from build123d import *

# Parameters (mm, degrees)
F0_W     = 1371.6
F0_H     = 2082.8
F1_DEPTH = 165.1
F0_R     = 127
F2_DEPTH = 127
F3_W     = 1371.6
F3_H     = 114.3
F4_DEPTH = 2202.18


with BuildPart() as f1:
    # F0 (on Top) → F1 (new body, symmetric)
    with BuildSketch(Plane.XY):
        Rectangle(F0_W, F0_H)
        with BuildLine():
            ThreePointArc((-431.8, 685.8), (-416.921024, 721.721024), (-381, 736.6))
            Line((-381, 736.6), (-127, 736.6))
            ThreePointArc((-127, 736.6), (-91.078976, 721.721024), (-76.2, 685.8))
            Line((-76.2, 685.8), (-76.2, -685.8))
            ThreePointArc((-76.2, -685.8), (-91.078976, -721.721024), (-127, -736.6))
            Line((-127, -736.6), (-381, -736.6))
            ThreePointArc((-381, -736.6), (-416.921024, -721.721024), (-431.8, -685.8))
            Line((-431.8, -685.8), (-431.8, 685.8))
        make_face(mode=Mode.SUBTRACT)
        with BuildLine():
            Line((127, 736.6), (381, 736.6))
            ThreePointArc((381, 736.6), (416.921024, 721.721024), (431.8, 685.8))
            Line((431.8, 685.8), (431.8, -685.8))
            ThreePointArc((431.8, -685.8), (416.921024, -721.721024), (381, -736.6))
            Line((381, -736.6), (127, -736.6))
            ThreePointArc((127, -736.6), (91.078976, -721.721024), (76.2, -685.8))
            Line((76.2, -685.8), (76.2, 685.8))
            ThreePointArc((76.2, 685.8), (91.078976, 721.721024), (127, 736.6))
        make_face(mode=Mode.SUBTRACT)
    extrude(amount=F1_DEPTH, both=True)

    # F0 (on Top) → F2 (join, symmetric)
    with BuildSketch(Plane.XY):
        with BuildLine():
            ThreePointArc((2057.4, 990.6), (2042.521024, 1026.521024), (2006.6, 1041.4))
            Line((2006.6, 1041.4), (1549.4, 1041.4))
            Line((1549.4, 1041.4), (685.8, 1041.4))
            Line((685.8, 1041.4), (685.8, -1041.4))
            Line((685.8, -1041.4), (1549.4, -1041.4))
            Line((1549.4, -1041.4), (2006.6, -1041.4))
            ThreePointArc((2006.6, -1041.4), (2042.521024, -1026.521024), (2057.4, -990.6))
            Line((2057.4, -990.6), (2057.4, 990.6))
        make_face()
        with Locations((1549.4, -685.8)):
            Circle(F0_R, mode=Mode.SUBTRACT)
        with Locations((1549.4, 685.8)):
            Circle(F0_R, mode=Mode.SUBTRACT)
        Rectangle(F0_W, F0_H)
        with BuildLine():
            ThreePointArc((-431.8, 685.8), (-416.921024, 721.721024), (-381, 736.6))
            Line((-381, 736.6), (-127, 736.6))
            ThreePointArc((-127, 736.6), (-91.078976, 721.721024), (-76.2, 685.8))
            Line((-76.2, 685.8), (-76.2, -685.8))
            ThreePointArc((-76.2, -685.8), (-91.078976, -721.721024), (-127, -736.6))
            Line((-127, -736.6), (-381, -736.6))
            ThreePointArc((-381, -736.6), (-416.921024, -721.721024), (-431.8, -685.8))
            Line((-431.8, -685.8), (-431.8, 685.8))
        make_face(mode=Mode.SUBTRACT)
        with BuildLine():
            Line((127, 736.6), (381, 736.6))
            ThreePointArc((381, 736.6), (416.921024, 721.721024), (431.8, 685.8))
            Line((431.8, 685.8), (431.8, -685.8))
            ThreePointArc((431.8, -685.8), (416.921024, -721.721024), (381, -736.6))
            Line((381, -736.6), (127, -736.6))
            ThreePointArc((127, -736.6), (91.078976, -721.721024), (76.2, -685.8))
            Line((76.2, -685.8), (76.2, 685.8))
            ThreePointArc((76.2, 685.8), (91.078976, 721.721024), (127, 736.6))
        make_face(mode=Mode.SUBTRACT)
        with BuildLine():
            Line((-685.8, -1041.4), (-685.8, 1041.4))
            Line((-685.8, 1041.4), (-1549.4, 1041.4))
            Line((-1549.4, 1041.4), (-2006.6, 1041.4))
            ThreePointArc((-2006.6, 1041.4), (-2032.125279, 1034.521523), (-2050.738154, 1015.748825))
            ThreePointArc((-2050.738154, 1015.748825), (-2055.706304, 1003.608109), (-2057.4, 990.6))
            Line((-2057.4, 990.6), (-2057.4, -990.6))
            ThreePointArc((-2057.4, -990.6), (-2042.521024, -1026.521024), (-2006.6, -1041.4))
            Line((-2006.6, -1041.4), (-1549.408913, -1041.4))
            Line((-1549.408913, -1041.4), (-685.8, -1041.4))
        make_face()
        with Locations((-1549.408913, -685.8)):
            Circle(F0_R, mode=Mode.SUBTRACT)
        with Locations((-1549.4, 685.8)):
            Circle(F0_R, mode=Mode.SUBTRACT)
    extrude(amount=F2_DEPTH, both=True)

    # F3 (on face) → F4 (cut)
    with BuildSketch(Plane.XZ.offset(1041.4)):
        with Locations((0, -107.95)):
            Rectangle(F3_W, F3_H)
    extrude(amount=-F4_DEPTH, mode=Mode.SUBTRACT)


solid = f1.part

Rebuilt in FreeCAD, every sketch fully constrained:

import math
import FreeCAD as App
import Part
import Sketcher

V = App.Vector
Q = App.Units.Quantity


def add_polygon(sketch, points):
    """Adds a closed chain of lines whose ends are joined by coincident constraints."""
    first, n = sketch.GeometryCount, len(points)
    for a, b in zip(points, points[1:] + points[:1]):
        sketch.addGeometry(Part.LineSegment(App.Vector(*a, 0), App.Vector(*b, 0)), False)
    for i in range(n):
        sketch.addConstraint(Sketcher.Constraint("Coincident", first + i, 2, first + (i + 1) % n, 1))

doc = App.newDocument("Part")
body = doc.addObject("PartDesign::Body", "Body")

# Sketch on XY plane
sketch1 = body.newObject("Sketcher::SketchObject", "Sketch")
sketch1.AttachmentSupport = (doc.getObject("XY_Plane"), [""])
sketch1.MapMode = "FlatFace"
add_polygon(sketch1, [(-685.8, 1041.4), (-685.8, -1041.4), (685.8, -1041.4), (685.8, 1041.4)])  # lines 0-3
sketch1.addGeometry(Part.LineSegment(V(-431.8, -685.8, 0), V(-431.8, 685.8, 0)), False)  # 4
sketch1.addGeometry(Part.ArcOfCircle(Part.Circle(V(-380.999998, 685.799998, 0), V(0, 0, 1), 50.800002), math.radians(90.000002), math.radians(179.999998)), False)  # 5
sketch1.addGeometry(Part.LineSegment(V(-381, 736.6, 0), V(-127, 736.6, 0)), False)  # 6
sketch1.addGeometry(Part.ArcOfCircle(Part.Circle(V(-127.000002, 685.799998, 0), V(0, 0, 1), 50.800002), math.radians(0.000002), math.radians(89.999998)), False)  # 7
sketch1.addGeometry(Part.LineSegment(V(-76.2, 685.8, 0), V(-76.2, -685.8, 0)), False)  # 8
sketch1.addGeometry(Part.ArcOfCircle(Part.Circle(V(-127.000002, -685.799998, 0), V(0, 0, 1), 50.800002), math.radians(-89.999998), math.radians(-0.000002)), False)  # 9
sketch1.addGeometry(Part.LineSegment(V(-127, -736.6, 0), V(-381, -736.6, 0)), False)  # 10
sketch1.addGeometry(Part.ArcOfCircle(Part.Circle(V(-380.999998, -685.799998, 0), V(0, 0, 1), 50.800002), math.radians(-179.999998), math.radians(-90.000002)), False)  # 11
sketch1.addGeometry(Part.ArcOfCircle(Part.Circle(V(127.000002, 685.799998, 0), V(0, 0, 1), 50.800002), math.radians(90.000002), math.radians(179.999998)), False)  # 12
sketch1.addGeometry(Part.LineSegment(V(127, 736.6, 0), V(381, 736.6, 0)), False)  # 13
sketch1.addGeometry(Part.ArcOfCircle(Part.Circle(V(380.999998, 685.799998, 0), V(0, 0, 1), 50.800002), math.radians(0.000002), math.radians(89.999998)), False)  # 14
sketch1.addGeometry(Part.LineSegment(V(431.8, 685.8, 0), V(431.8, -685.8, 0)), False)  # 15
sketch1.addGeometry(Part.ArcOfCircle(Part.Circle(V(380.999998, -685.799998, 0), V(0, 0, 1), 50.800002), math.radians(-89.999998), math.radians(-0.000002)), False)  # 16
sketch1.addGeometry(Part.LineSegment(V(381, -736.6, 0), V(127, -736.6, 0)), False)  # 17
sketch1.addGeometry(Part.ArcOfCircle(Part.Circle(V(127.000002, -685.799998, 0), V(0, 0, 1), 50.800002), math.radians(-179.999998), math.radians(-90.000002)), False)  # 18
sketch1.addGeometry(Part.LineSegment(V(76.2, -685.8, 0), V(76.2, 685.8, 0)), False)  # 19
sketch1.addConstraint(Sketcher.Constraint("Tangent", 4, 2, 5, 2))
sketch1.addConstraint(Sketcher.Constraint("Tangent", 5, 1, 6, 1))
sketch1.addConstraint(Sketcher.Constraint("Tangent", 6, 2, 7, 2))
sketch1.addConstraint(Sketcher.Constraint("Tangent", 7, 1, 8, 1))
sketch1.addConstraint(Sketcher.Constraint("Tangent", 8, 2, 9, 2))
sketch1.addConstraint(Sketcher.Constraint("Tangent", 9, 1, 10, 1))
sketch1.addConstraint(Sketcher.Constraint("Tangent", 10, 2, 11, 2))
sketch1.addConstraint(Sketcher.Constraint("Tangent", 11, 1, 4, 1))
sketch1.addConstraint(Sketcher.Constraint("Tangent", 12, 1, 13, 1))
sketch1.addConstraint(Sketcher.Constraint("Tangent", 13, 2, 14, 2))
sketch1.addConstraint(Sketcher.Constraint("Tangent", 14, 1, 15, 1))
sketch1.addConstraint(Sketcher.Constraint("Tangent", 15, 2, 16, 2))
sketch1.addConstraint(Sketcher.Constraint("Tangent", 16, 1, 17, 1))
sketch1.addConstraint(Sketcher.Constraint("Tangent", 17, 2, 18, 2))
sketch1.addConstraint(Sketcher.Constraint("Tangent", 18, 1, 19, 1))
sketch1.addConstraint(Sketcher.Constraint("Tangent", 19, 2, 12, 2))
sketch1.addConstraint(Sketcher.Constraint("Vertical", 0))
sketch1.addConstraint(Sketcher.Constraint("Horizontal", 1))
sketch1.addConstraint(Sketcher.Constraint("Vertical", 2))
sketch1.addConstraint(Sketcher.Constraint("Horizontal", 3))
sketch1.addConstraint(Sketcher.Constraint("Vertical", 4))
sketch1.addConstraint(Sketcher.Constraint("Horizontal", 6))
sketch1.addConstraint(Sketcher.Constraint("Vertical", 8))
sketch1.addConstraint(Sketcher.Constraint("Horizontal", 10))
sketch1.addConstraint(Sketcher.Constraint("Horizontal", 13))
sketch1.addConstraint(Sketcher.Constraint("Vertical", 15))
sketch1.addConstraint(Sketcher.Constraint("Horizontal", 17))
sketch1.addConstraint(Sketcher.Constraint("Vertical", 19))
sketch1.addConstraint(Sketcher.Constraint("Equal", 5, 7))
sketch1.addConstraint(Sketcher.Constraint("Equal", 7, 9))
sketch1.addConstraint(Sketcher.Constraint("Equal", 9, 11))
sketch1.addConstraint(Sketcher.Constraint("Equal", 11, 12))
sketch1.addConstraint(Sketcher.Constraint("Equal", 12, 14))
sketch1.addConstraint(Sketcher.Constraint("Equal", 14, 16))
sketch1.addConstraint(Sketcher.Constraint("Equal", 16, 18))
sketch1.addConstraint(Sketcher.Constraint("Symmetric", 9, 3, 12, 3, -1, 1))
sketch1.addConstraint(Sketcher.Constraint("Symmetric", 5, 3, 16, 3, -1, 1))
sketch1.addConstraint(Sketcher.Constraint("Symmetric", 0, 2, 2, 2, -1, 1))
sketch1.addConstraint(Sketcher.Constraint("Horizontal", 7, 3, 12, 3))
sketch1.addConstraint(Sketcher.Constraint("Equal", 3, 4))
sketch1.addConstraint(Sketcher.Constraint("Radius", 5, Q("2.0000001 in")))
sketch1.addConstraint(Sketcher.Constraint("DistanceX", 1, 1, 1, 2, Q("54 in")))
sketch1.addConstraint(Sketcher.Constraint("DistanceX", 6, 1, 6, 2, Q("10 in")))
sketch1.addConstraint(Sketcher.Constraint("DistanceY", 0, 2, 0, 1, Q("82 in")))
sketch1.addConstraint(Sketcher.Constraint("DistanceX", 5, 3, -1, 1, Q("14.9999999 in")))
pad1 = body.newObject("PartDesign::Pad", "Pad")
pad1.Profile = sketch1
pad1.Length = Q("13 in")
pad1.Midplane = True

# Sketch on XY plane
sketch2 = body.newObject("Sketcher::SketchObject", "Sketch001")
sketch2.AttachmentSupport = (doc.getObject("XY_Plane"), [""])
sketch2.MapMode = "FlatFace"
sketch2.addGeometry(Part.ArcOfCircle(Part.Circle(V(2006.599998, 990.599998, 0), V(0, 0, 1), 50.800002), math.radians(0.000002), math.radians(89.999998)), False)
sketch2.addGeometry(Part.LineSegment(V(2006.6, 1041.4, 0), V(-2006.6, 1041.4, 0)), False)
sketch2.addGeometry(Part.ArcOfCircle(Part.Circle(V(-2006.600001, 990.600002, 0), V(0, 0, 1), 50.799998), math.radians(89.999998), math.radians(150.326584)), False)
sketch2.addGeometry(Part.ArcOfCircle(Part.Circle(V(-2006.599992, 990.599999, 0), V(0, 0, 1), 50.800008), math.radians(150.326586), math.radians(179.999999)), False)
sketch2.addGeometry(Part.LineSegment(V(-2057.4, 990.6, 0), V(-2057.4, -990.6, 0)), False)
sketch2.addGeometry(Part.ArcOfCircle(Part.Circle(V(-2006.599998, -990.599998, 0), V(0, 0, 1), 50.800002), math.radians(-179.999998), math.radians(-90.000002)), False)
sketch2.addGeometry(Part.LineSegment(V(-2006.6, -1041.4, 0), V(2006.6, -1041.4, 0)), False)
sketch2.addGeometry(Part.ArcOfCircle(Part.Circle(V(2006.599998, -990.599998, 0), V(0, 0, 1), 50.800002), math.radians(-89.999998), math.radians(-0.000002)), False)
sketch2.addGeometry(Part.LineSegment(V(2057.4, -990.6, 0), V(2057.4, 990.6, 0)), False)
sketch2.addGeometry(Part.Circle(V(-1549.408913, -685.8, 0), V(0, 0, 1), 127), False)
sketch2.addGeometry(Part.LineSegment(V(-431.8, -685.8, 0), V(-431.8, 685.8, 0)), False)
sketch2.addGeometry(Part.ArcOfCircle(Part.Circle(V(-380.999998, 685.799998, 0), V(0, 0, 1), 50.800002), math.radians(90.000002), math.radians(179.999998)), False)
sketch2.addGeometry(Part.LineSegment(V(-381, 736.6, 0), V(-127, 736.6, 0)), False)
sketch2.addGeometry(Part.ArcOfCircle(Part.Circle(V(-127.000002, 685.799998, 0), V(0, 0, 1), 50.800002), math.radians(0.000002), math.radians(89.999998)), False)
sketch2.addGeometry(Part.LineSegment(V(-76.2, 685.8, 0), V(-76.2, -685.8, 0)), False)
sketch2.addGeometry(Part.ArcOfCircle(Part.Circle(V(-127.000002, -685.799998, 0), V(0, 0, 1), 50.800002), math.radians(-89.999998), math.radians(-0.000002)), False)
sketch2.addGeometry(Part.LineSegment(V(-127, -736.6, 0), V(-381, -736.6, 0)), False)
sketch2.addGeometry(Part.ArcOfCircle(Part.Circle(V(-380.999998, -685.799998, 0), V(0, 0, 1), 50.800002), math.radians(-179.999998), math.radians(-90.000002)), False)
sketch2.addGeometry(Part.Circle(V(1549.4, -685.8, 0), V(0, 0, 1), 127), False)
sketch2.addGeometry(Part.ArcOfCircle(Part.Circle(V(127.000002, 685.799998, 0), V(0, 0, 1), 50.800002), math.radians(90.000002), math.radians(179.999998)), False)
sketch2.addGeometry(Part.LineSegment(V(127, 736.6, 0), V(381, 736.6, 0)), False)
sketch2.addGeometry(Part.ArcOfCircle(Part.Circle(V(380.999998, 685.799998, 0), V(0, 0, 1), 50.800002), math.radians(0.000002), math.radians(89.999998)), False)
sketch2.addGeometry(Part.LineSegment(V(431.8, 685.8, 0), V(431.8, -685.8, 0)), False)
sketch2.addGeometry(Part.ArcOfCircle(Part.Circle(V(380.999998, -685.799998, 0), V(0, 0, 1), 50.800002), math.radians(-89.999998), math.radians(-0.000002)), False)
sketch2.addGeometry(Part.LineSegment(V(381, -736.6, 0), V(127, -736.6, 0)), False)
sketch2.addGeometry(Part.ArcOfCircle(Part.Circle(V(127.000002, -685.799998, 0), V(0, 0, 1), 50.800002), math.radians(-179.999998), math.radians(-90.000002)), False)
sketch2.addGeometry(Part.LineSegment(V(76.2, -685.8, 0), V(76.2, 685.8, 0)), False)
sketch2.addGeometry(Part.Circle(V(-1549.4, 685.8, 0), V(0, 0, 1), 127), False)
sketch2.addGeometry(Part.Circle(V(1549.4, 685.8, 0), V(0, 0, 1), 127), False)
sketch2.addConstraint(Sketcher.Constraint("Tangent", 0, 2, 1, 1))
sketch2.addConstraint(Sketcher.Constraint("Tangent", 1, 2, 2, 1))
sketch2.addConstraint(Sketcher.Constraint("Tangent", 2, 2, 3, 1))
sketch2.addConstraint(Sketcher.Constraint("Tangent", 3, 2, 4, 1))
sketch2.addConstraint(Sketcher.Constraint("Tangent", 4, 2, 5, 1))
sketch2.addConstraint(Sketcher.Constraint("Tangent", 5, 2, 6, 1))
sketch2.addConstraint(Sketcher.Constraint("Tangent", 6, 2, 7, 1))
sketch2.addConstraint(Sketcher.Constraint("Tangent", 7, 2, 8, 1))
sketch2.addConstraint(Sketcher.Constraint("Tangent", 8, 2, 0, 1))
sketch2.addConstraint(Sketcher.Constraint("Tangent", 10, 2, 11, 2))
sketch2.addConstraint(Sketcher.Constraint("Tangent", 11, 1, 12, 1))
sketch2.addConstraint(Sketcher.Constraint("Tangent", 12, 2, 13, 2))
sketch2.addConstraint(Sketcher.Constraint("Tangent", 13, 1, 14, 1))
sketch2.addConstraint(Sketcher.Constraint("Tangent", 14, 2, 15, 2))
sketch2.addConstraint(Sketcher.Constraint("Tangent", 15, 1, 16, 1))
sketch2.addConstraint(Sketcher.Constraint("Tangent", 16, 2, 17, 2))
sketch2.addConstraint(Sketcher.Constraint("Tangent", 17, 1, 10, 1))
sketch2.addConstraint(Sketcher.Constraint("Tangent", 19, 1, 20, 1))
sketch2.addConstraint(Sketcher.Constraint("Tangent", 20, 2, 21, 2))
sketch2.addConstraint(Sketcher.Constraint("Tangent", 21, 1, 22, 1))
sketch2.addConstraint(Sketcher.Constraint("Tangent", 22, 2, 23, 2))
sketch2.addConstraint(Sketcher.Constraint("Tangent", 23, 1, 24, 1))
sketch2.addConstraint(Sketcher.Constraint("Tangent", 24, 2, 25, 2))
sketch2.addConstraint(Sketcher.Constraint("Tangent", 25, 1, 26, 1))
sketch2.addConstraint(Sketcher.Constraint("Tangent", 26, 2, 19, 2))
sketch2.addConstraint(Sketcher.Constraint("Horizontal", 1))
sketch2.addConstraint(Sketcher.Constraint("Vertical", 4))
sketch2.addConstraint(Sketcher.Constraint("Horizontal", 6))
sketch2.addConstraint(Sketcher.Constraint("Vertical", 8))
sketch2.addConstraint(Sketcher.Constraint("Vertical", 10))
sketch2.addConstraint(Sketcher.Constraint("Horizontal", 12))
sketch2.addConstraint(Sketcher.Constraint("Vertical", 14))
sketch2.addConstraint(Sketcher.Constraint("Horizontal", 16))
sketch2.addConstraint(Sketcher.Constraint("Horizontal", 20))
sketch2.addConstraint(Sketcher.Constraint("Vertical", 22))
sketch2.addConstraint(Sketcher.Constraint("Horizontal", 24))
sketch2.addConstraint(Sketcher.Constraint("Vertical", 26))
sketch2.addConstraint(Sketcher.Constraint("Equal", 0, 5))
sketch2.addConstraint(Sketcher.Constraint("Equal", 5, 7))
sketch2.addConstraint(Sketcher.Constraint("Equal", 7, 11))
sketch2.addConstraint(Sketcher.Constraint("Equal", 11, 13))
sketch2.addConstraint(Sketcher.Constraint("Equal", 13, 15))
sketch2.addConstraint(Sketcher.Constraint("Equal", 15, 17))
sketch2.addConstraint(Sketcher.Constraint("Equal", 9, 18))
sketch2.addConstraint(Sketcher.Constraint("Equal", 17, 19))
sketch2.addConstraint(Sketcher.Constraint("Equal", 19, 21))
sketch2.addConstraint(Sketcher.Constraint("Equal", 21, 23))
sketch2.addConstraint(Sketcher.Constraint("Equal", 23, 25))
sketch2.addConstraint(Sketcher.Constraint("Equal", 18, 27))
sketch2.addConstraint(Sketcher.Constraint("Equal", 27, 28))
sketch2.addConstraint(Sketcher.Constraint("Symmetric", 0, 3, 5, 3, -1, 1))
sketch2.addConstraint(Sketcher.Constraint("Symmetric", 2, 3, 7, 3, -1, 1))
sketch2.addConstraint(Sketcher.Constraint("Symmetric", 15, 3, 19, 3, -1, 1))
sketch2.addConstraint(Sketcher.Constraint("Symmetric", 11, 3, 23, 3, -1, 1))
sketch2.addConstraint(Sketcher.Constraint("Symmetric", 18, 3, 27, 3, -1, 1))
sketch2.addConstraint(Sketcher.Constraint("Symmetric", 27, 3, 28, 3, -2))
sketch2.addConstraint(Sketcher.Constraint("Horizontal", 9, 3, 15, 3))
sketch2.addConstraint(Sketcher.Constraint("Horizontal", 17, 3, 18, 3))
sketch2.addConstraint(Sketcher.Constraint("Horizontal", 13, 3, 19, 3))
sketch2.addConstraint(Sketcher.Constraint("Diameter", 9, Q("10 in")))
sketch2.addConstraint(Sketcher.Constraint("Radius", 0, Q("2.0000001 in")))
sketch2.addConstraint(Sketcher.Constraint("DistanceX", 1, 2, 1, 1, Q("158 in")))
sketch2.addConstraint(Sketcher.Constraint("DistanceX", 12, 1, 12, 2, Q("10 in")))
sketch2.addConstraint(Sketcher.Constraint("DistanceY", 4, 2, 4, 1, Q("78 in")))
sketch2.addConstraint(Sketcher.Constraint("DistanceY", 10, 1, 10, 2, Q("54 in")))
sketch2.addConstraint(Sketcher.Constraint("DistanceX", 11, 3, -1, 1, Q("14.9999999 in")))
sketch2.addConstraint(Sketcher.Constraint("DistanceX", -1, 1, 18, 3, Q("61 in")))
sketch2.addConstraint(Sketcher.Constraint("DistanceX", 3, 3, 9, 3, Q("457.191079 mm")))
sketch2.addConstraint(Sketcher.Constraint("DistanceX", 2, 2, 3, 3, Q("44.138162 mm")))
pad2 = body.newObject("PartDesign::Pad", "Pad001")
pad2.Profile = sketch2
pad2.Length = Q("10 in")
pad2.Midplane = True

# Sketch on XZ plane
sketch3 = body.newObject("Sketcher::SketchObject", "Sketch002")
sketch3.AttachmentSupport = (doc.getObject("XZ_Plane"), [""])
sketch3.MapMode = "FlatFace"
sketch3.AttachmentOffset = App.Placement(V(0, 0, 41 * 25.4), App.Rotation())
add_polygon(sketch3, [(-685.8, -50.8), (-685.8, -165.1), (685.8, -165.1), (685.8, -50.8)])  # lines 0-3
sketch3.addConstraint(Sketcher.Constraint("Vertical", 0))
sketch3.addConstraint(Sketcher.Constraint("Horizontal", 1))
sketch3.addConstraint(Sketcher.Constraint("Vertical", 2))
sketch3.addConstraint(Sketcher.Constraint("Horizontal", 3))
sketch3.addConstraint(Sketcher.Constraint("DistanceX", 1, 1, 1, 2, Q("54 in")))
sketch3.addConstraint(Sketcher.Constraint("DistanceY", 0, 2, 0, 1, Q("4.5 in")))
sketch3.addConstraint(Sketcher.Constraint("DistanceX", 0, 2, -1, 1, Q("27 in")))
sketch3.addConstraint(Sketcher.Constraint("DistanceY", 2, 2, -1, 1, Q("2 in")))
pocket1 = body.newObject("PartDesign::Pocket", "Pocket")
pocket1.Profile = sketch3
pocket1.Length = Q("86.7 in")

doc.recompute()
